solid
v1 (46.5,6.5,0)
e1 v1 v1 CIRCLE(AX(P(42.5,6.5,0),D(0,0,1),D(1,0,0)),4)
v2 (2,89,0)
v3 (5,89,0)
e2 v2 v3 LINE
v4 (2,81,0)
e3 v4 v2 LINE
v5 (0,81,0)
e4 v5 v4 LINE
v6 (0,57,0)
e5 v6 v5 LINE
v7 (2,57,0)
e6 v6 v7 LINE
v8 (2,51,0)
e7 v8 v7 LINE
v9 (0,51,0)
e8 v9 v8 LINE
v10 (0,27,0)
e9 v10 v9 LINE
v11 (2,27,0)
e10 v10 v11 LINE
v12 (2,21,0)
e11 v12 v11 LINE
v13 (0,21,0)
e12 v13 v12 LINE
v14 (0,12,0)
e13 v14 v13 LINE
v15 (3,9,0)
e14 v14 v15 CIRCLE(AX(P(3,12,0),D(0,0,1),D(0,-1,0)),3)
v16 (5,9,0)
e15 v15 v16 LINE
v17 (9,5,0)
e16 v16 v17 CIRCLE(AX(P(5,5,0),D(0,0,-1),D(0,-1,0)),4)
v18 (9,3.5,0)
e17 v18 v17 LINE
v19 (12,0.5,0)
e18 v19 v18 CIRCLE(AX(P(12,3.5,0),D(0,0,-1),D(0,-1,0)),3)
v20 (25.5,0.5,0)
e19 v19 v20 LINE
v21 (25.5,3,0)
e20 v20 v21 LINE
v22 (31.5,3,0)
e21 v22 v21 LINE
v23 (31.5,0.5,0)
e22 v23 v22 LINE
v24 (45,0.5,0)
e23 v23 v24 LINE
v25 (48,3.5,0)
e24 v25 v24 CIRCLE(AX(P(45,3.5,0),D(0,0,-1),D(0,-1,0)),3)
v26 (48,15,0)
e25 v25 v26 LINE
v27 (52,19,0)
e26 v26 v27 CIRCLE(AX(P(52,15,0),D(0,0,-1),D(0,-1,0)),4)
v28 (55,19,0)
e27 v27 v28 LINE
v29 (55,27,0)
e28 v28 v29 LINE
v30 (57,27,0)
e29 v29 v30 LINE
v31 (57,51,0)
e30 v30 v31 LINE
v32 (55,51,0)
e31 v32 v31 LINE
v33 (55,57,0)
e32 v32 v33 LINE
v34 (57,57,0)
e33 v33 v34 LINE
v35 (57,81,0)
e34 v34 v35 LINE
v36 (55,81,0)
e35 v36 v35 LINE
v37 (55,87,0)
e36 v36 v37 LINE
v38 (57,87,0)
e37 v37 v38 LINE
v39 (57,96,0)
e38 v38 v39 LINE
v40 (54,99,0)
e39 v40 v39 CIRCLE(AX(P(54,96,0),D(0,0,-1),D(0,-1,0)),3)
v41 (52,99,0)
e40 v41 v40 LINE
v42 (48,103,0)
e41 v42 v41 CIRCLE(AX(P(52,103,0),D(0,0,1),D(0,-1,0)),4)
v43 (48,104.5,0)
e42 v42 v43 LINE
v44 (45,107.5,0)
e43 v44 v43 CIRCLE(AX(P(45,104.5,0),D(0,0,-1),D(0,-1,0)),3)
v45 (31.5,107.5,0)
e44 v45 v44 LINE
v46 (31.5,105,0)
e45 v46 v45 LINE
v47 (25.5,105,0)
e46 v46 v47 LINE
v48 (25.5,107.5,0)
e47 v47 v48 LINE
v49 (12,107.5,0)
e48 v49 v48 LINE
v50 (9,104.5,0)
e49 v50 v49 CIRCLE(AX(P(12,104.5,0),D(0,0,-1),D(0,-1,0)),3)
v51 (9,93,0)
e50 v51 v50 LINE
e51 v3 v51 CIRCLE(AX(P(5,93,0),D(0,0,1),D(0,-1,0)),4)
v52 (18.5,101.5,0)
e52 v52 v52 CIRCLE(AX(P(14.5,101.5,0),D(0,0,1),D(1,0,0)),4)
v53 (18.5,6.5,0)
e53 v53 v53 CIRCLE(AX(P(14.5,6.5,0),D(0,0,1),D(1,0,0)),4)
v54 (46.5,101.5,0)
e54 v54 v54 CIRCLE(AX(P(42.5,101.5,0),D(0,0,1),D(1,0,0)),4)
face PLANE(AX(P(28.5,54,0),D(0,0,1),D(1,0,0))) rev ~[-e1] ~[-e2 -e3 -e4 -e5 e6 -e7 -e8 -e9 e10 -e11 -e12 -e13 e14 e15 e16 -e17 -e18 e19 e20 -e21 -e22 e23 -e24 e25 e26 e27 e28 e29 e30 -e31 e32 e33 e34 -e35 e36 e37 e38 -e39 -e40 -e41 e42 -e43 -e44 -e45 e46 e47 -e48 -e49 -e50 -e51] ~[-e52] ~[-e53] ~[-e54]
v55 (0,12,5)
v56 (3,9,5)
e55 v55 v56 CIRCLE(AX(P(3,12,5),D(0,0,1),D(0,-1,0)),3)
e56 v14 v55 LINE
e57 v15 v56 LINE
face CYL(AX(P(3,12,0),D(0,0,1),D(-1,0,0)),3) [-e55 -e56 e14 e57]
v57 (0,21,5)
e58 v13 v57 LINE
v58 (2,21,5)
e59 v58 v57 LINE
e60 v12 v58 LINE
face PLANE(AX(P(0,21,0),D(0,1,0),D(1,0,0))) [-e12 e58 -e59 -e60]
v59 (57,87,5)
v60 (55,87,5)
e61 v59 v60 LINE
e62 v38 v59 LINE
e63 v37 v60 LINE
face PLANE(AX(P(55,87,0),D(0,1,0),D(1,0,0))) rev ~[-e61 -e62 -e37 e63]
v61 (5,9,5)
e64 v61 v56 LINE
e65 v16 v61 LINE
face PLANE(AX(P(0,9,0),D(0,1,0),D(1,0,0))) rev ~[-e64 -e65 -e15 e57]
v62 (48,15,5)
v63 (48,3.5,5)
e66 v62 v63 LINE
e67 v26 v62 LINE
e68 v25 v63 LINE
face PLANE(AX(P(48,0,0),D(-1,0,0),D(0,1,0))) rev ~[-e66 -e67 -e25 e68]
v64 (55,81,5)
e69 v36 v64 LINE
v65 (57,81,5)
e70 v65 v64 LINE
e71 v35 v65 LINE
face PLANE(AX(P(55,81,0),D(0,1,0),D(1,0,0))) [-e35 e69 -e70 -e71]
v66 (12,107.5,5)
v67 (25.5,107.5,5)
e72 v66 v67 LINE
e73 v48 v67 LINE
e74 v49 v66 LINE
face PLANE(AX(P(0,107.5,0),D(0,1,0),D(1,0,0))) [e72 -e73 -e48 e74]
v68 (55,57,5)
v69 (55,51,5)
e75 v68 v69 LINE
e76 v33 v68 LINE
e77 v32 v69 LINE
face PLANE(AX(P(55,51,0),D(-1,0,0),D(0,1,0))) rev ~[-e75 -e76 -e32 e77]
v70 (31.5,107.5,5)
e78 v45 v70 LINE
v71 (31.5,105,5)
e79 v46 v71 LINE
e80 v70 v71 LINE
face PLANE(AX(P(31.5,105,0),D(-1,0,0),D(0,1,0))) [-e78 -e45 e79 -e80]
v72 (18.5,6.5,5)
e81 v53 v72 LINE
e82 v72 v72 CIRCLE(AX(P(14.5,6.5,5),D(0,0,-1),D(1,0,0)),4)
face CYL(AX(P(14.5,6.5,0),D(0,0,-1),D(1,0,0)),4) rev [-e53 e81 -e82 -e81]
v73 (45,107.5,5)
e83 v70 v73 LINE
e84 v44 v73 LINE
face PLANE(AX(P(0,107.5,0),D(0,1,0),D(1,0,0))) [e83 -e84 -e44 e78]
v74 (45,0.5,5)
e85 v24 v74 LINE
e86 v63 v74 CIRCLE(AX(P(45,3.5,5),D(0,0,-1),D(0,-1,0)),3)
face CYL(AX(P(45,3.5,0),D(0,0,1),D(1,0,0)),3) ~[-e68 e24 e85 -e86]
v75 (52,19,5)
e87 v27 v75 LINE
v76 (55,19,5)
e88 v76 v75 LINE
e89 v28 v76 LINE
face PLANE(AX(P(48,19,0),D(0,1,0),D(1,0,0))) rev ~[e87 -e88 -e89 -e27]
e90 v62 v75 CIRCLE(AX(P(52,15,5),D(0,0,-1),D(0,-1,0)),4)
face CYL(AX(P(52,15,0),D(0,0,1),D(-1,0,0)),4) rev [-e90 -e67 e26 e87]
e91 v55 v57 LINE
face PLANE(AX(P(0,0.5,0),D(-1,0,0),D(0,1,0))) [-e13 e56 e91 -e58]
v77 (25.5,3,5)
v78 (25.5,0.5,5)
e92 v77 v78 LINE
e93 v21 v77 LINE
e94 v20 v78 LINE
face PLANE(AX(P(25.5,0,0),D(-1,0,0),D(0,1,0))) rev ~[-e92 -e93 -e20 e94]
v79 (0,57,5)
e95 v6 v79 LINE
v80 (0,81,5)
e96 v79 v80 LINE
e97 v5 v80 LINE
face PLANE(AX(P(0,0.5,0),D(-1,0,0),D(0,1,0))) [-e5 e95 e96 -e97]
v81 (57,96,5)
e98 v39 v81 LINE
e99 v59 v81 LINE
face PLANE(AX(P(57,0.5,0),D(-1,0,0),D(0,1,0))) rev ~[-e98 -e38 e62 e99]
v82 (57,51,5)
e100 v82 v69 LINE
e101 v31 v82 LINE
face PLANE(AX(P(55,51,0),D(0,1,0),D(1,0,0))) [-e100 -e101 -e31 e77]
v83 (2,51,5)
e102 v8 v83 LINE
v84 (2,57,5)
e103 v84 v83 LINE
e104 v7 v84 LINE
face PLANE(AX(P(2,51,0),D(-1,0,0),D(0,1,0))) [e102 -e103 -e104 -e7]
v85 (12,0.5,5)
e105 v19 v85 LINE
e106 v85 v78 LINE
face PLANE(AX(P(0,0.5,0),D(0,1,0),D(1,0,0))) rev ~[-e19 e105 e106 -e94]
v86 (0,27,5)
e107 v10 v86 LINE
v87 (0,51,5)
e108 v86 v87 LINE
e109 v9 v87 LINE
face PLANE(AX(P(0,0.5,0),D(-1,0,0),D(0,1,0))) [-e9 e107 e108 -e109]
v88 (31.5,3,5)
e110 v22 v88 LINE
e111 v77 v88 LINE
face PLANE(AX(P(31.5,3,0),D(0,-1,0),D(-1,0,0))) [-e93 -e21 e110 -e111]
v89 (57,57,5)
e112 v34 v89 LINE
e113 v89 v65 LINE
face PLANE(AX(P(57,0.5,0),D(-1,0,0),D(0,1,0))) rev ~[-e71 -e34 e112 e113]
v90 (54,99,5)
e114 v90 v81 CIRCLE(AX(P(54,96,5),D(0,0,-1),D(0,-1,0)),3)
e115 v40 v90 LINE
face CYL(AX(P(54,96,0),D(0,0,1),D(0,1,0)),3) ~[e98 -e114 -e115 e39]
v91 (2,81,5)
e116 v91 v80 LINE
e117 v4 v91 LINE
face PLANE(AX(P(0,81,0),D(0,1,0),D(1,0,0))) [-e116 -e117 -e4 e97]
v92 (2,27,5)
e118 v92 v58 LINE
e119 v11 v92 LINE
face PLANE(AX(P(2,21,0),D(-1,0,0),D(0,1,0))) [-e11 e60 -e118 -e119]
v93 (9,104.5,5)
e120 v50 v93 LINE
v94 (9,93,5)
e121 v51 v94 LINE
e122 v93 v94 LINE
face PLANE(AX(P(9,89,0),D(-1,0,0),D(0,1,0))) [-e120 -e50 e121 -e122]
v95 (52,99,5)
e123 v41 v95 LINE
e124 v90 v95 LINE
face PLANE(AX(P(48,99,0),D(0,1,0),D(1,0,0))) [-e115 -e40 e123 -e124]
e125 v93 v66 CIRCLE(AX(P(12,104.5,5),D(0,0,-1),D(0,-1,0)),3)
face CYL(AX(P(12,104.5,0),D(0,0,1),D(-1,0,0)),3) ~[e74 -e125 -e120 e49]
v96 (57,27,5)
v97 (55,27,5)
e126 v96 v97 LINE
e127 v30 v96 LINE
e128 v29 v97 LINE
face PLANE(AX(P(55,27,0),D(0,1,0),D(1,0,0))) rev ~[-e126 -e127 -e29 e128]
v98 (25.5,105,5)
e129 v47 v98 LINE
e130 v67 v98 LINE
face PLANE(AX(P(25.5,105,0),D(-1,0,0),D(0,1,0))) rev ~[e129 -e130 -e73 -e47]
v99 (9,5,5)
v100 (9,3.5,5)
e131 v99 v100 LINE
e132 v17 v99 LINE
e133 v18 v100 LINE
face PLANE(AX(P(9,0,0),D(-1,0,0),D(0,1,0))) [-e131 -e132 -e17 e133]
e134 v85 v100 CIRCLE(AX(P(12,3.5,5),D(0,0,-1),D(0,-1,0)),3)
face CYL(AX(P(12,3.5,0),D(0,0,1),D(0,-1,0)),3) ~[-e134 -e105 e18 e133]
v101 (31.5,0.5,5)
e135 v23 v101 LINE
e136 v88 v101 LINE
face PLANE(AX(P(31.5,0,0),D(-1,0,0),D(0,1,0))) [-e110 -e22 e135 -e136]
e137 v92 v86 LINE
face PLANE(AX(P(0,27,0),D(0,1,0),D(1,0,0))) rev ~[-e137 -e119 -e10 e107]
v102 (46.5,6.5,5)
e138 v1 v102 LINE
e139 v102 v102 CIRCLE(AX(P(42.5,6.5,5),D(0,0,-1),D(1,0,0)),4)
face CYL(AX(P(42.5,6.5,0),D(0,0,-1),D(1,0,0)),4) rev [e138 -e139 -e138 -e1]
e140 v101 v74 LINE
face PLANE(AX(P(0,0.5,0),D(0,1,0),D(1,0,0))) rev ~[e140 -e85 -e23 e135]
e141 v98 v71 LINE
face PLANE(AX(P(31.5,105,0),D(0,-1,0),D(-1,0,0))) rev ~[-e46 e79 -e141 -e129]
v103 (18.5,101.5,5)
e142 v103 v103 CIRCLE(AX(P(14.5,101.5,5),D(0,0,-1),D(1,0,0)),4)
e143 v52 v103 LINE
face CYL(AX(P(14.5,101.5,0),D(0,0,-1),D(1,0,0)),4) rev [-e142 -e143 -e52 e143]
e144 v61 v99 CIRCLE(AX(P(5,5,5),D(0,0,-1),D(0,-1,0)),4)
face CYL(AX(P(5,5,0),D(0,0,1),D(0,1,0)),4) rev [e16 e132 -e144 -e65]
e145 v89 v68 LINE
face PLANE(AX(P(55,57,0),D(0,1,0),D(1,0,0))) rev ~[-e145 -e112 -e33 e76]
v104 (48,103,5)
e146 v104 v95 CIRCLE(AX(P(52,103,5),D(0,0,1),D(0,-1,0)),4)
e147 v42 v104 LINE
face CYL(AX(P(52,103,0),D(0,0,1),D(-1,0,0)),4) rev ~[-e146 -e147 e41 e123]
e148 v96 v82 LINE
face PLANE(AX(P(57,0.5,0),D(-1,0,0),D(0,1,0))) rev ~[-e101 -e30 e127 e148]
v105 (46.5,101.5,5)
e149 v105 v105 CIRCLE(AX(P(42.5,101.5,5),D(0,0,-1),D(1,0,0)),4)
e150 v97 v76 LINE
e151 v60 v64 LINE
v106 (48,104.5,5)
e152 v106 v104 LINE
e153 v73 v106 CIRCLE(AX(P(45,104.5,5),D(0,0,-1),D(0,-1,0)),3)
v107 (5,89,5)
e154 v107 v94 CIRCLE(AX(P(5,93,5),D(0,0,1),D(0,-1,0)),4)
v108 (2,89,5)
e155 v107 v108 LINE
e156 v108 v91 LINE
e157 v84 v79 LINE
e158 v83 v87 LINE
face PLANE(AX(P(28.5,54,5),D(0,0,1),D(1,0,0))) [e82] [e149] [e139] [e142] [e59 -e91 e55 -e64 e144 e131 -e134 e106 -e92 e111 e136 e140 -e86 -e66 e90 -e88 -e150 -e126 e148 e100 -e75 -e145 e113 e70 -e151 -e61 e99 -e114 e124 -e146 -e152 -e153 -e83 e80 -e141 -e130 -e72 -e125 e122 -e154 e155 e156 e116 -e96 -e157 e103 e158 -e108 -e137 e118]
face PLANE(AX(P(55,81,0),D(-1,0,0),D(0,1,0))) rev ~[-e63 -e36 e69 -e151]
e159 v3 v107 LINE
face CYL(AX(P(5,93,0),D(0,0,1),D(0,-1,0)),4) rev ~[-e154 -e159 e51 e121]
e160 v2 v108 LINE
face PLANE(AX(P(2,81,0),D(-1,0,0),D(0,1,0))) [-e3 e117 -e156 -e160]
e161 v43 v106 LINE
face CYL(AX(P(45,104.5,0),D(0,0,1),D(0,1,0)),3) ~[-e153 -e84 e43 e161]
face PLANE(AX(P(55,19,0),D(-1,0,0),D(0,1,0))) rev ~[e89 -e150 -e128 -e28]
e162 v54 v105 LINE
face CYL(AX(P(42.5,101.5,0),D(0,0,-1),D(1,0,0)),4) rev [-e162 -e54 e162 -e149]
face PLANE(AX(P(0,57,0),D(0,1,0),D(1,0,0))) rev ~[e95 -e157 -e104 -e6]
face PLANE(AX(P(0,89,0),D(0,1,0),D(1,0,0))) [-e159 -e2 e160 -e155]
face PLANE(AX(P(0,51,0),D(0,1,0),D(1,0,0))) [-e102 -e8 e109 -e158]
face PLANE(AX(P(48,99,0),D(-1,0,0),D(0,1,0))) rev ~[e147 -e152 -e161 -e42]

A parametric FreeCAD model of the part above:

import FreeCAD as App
import Part
import Sketcher

V = App.Vector


def edges_at(feature, points):
    """Names of the edges that pass closest to the given points."""
    edges = feature.Shape.Edges
    near = lambda p: min(range(len(edges)), key=lambda i: edges[i].distToShape(Part.Vertex(*p))[0])
    return sorted({f"Edge{near(p) + 1}" for p in points})

doc = App.newDocument("Part")
params = doc.addObject("Spreadsheet::Sheet", "Params")
for row, (alias, value) in enumerate([
    ("sketch1_width", "9 mm"),
    ("pad1_length", "10 mm"),
    ("sketch2_width", "9 mm"),
    ("sketch2_height", "19 mm"),
    ("pad2_length", "10 mm"),
    ("sketch3_width", "9 mm"),
    ("pad3_length", "10 mm"),
    ("sketch4_width", "2 mm"),
    ("sketch4_height", "6 mm"),
    ("pad4_length", "10 mm"),
    ("sketch5_width", "2 mm"),
    ("sketch5_height", "8 mm"),
    ("pad5_length", "10 mm"),
    ("sketch6_width", "2 mm"),
    ("sketch6_height", "6 mm"),
    ("pad6_length", "10 mm"),
    ("sketch7_width", "2 mm"),
    ("sketch7_height", "6 mm"),
    ("pad7_length", "10 mm"),
    ("sketch8_width", "2 mm"),
    ("sketch8_height", "6 mm"),
    ("pad8_length", "10 mm"),
    ("sketch9_width", "2 mm"),
    ("sketch9_height", "8 mm"),
    ("pad9_length", "10 mm"),
    ("sketch10_diameter", "8 mm"),
    ("pad10_length", "10 mm"),
    ("sketch11_diameter", "8 mm"),
    ("pad11_length", "10 mm"),
    ("sketch12_diameter", "8 mm"),
    ("pad12_length", "10 mm"),
    ("sketch13_diameter", "8 mm"),
    ("pad13_length", "10 mm"),
    ("sketch14_width", "3 mm"),
    ("sketch14_height", "6 mm"),
    ("pad14_length", "10 mm"),
    ("sketch15_width", "3 mm"),
    ("sketch15_height", "6 mm"),
    ("pad15_length", "10 mm"),
    ("sketch16_width", "9 mm"),
    ("sketch16_height", "19 mm"),
    ("pad16_length", "10 mm"),
    ("sketch17_width", "57 mm"),
    ("sketch17_height", "107 mm"),
    ("pad17_length", "5 mm"),
    ("fillet_radius", "3 mm"),
    ("fillet2_radius", "4 mm"),
], start=1):
    params.set(f"A{row}", alias)
    params.set(f"B{row}", "=" + value)
    params.setAlias(f"B{row}", alias)

body = doc.addObject("PartDesign::Body", "Body")

sketch1 = body.newObject("Sketcher::SketchObject", "Sketch")
sketch1.AttachmentSupport = (doc.getObject("XY_Plane"), [""])
sketch1.MapMode = "FlatFace"
sketch1.addGeometry(Part.LineSegment(V(0, 9, 0), V(0, 0, 0)), False)
sketch1.addGeometry(Part.LineSegment(V(0, 0, 0), V(9, 0, 0)), False)
sketch1.addGeometry(Part.LineSegment(V(9, 0, 0), V(9, 9, 0)), False)
sketch1.addGeometry(Part.LineSegment(V(9, 9, 0), V(0, 9, 0)), False)
sketch1.addConstraint(Sketcher.Constraint("Coincident", 0, 2, 1, 1))
sketch1.addConstraint(Sketcher.Constraint("Coincident", 1, 2, 2, 1))
sketch1.addConstraint(Sketcher.Constraint("Coincident", 2, 2, 3, 1))
sketch1.addConstraint(Sketcher.Constraint("Coincident", 3, 2, 0, 1))
sketch1.addConstraint(Sketcher.Constraint("Vertical", 0))
sketch1.addConstraint(Sketcher.Constraint("Horizontal", 1))
sketch1.addConstraint(Sketcher.Constraint("Vertical", 2))
sketch1.addConstraint(Sketcher.Constraint("Horizontal", 3))
sketch1.addConstraint(Sketcher.Constraint("Coincident", 0, 2, -1, 1))
sketch1.addConstraint(Sketcher.Constraint("Equal", 3, 0))
sketch1.addConstraint(Sketcher.Constraint("DistanceX", 1, 1, 1, 2, 9.0))
sketch1.setExpression("Constraints[10]", "Params.sketch1_width")
pad1 = body.newObject("PartDesign::Pad", "Pad")
pad1.Profile = sketch1
pad1.setExpression("Length", "Params.pad1_length")
body2 = doc.addObject("PartDesign::Body", "Body001")

sketch2 = body2.newObject("Sketcher::SketchObject", "Sketch001")
sketch2.AttachmentSupport = (doc.getObject("XY_Plane001"), [""])
sketch2.MapMode = "FlatFace"
sketch2.addGeometry(Part.LineSegment(V(0, 108, 0), V(0, 89, 0)), False)
sketch2.addGeometry(Part.LineSegment(V(0, 89, 0), V(9, 89, 0)), False)
sketch2.addGeometry(Part.LineSegment(V(9, 89, 0), V(9, 108, 0)), False)
sketch2.addGeometry(Part.LineSegment(V(9, 108, 0), V(0, 108, 0)), False)
sketch2.addConstraint(Sketcher.Constraint("Coincident", 0, 2, 1, 1))
sketch2.addConstraint(Sketcher.Constraint("Coincident", 1, 2, 2, 1))
sketch2.addConstraint(Sketcher.Constraint("Coincident", 2, 2, 3, 1))
sketch2.addConstraint(Sketcher.Constraint("Coincident", 3, 2, 0, 1))
sketch2.addConstraint(Sketcher.Constraint("Vertical", 0))
sketch2.addConstraint(Sketcher.Constraint("Horizontal", 1))
sketch2.addConstraint(Sketcher.Constraint("Vertical", 2))
sketch2.addConstraint(Sketcher.Constraint("Horizontal", 3))
sketch2.addConstraint(Sketcher.Constraint("PointOnObject", 0, 2, -2))
sketch2.addConstraint(Sketcher.Constraint("DistanceX", 1, 1, 1, 2, 9.0))
sketch2.addConstraint(Sketcher.Constraint("DistanceY", 0, 2, 0, 1, 19.0))
sketch2.addConstraint(Sketcher.Constraint("DistanceY", -1, 1, 0, 2, 89.0))
sketch2.setExpression("Constraints[9]", "Params.sketch2_width")
sketch2.setExpression("Constraints[10]", "Params.sketch2_height")
pad2 = body2.newObject("PartDesign::Pad", "Pad001")
pad2.Profile = sketch2
pad2.setExpression("Length", "Params.pad2_length")
body3 = doc.addObject("PartDesign::Body", "Body002")

sketch3 = body3.newObject("Sketcher::SketchObject", "Sketch002")
sketch3.AttachmentSupport = (doc.getObject("XY_Plane002"), [""])
sketch3.MapMode = "FlatFace"
sketch3.addGeometry(Part.LineSegment(V(48, 108, 0), V(48, 99, 0)), False)
sketch3.addGeometry(Part.LineSegment(V(48, 99, 0), V(57, 99, 0)), False)
sketch3.addGeometry(Part.LineSegment(V(57, 99, 0), V(57, 108, 0)), False)
sketch3.addGeometry(Part.LineSegment(V(57, 108, 0), V(48, 108, 0)), False)
sketch3.addConstraint(Sketcher.Constraint("Coincident", 0, 2, 1, 1))
sketch3.addConstraint(Sketcher.Constraint("Coincident", 1, 2, 2, 1))
sketch3.addConstraint(Sketcher.Constraint("Coincident", 2, 2, 3, 1))
sketch3.addConstraint(Sketcher.Constraint("Coincident", 3, 2, 0, 1))
sketch3.addConstraint(Sketcher.Constraint("Vertical", 0))
sketch3.addConstraint(Sketcher.Constraint("Horizontal", 1))
sketch3.addConstraint(Sketcher.Constraint("Vertical", 2))
sketch3.addConstraint(Sketcher.Constraint("Horizontal", 3))
sketch3.addConstraint(Sketcher.Constraint("Equal", 3, 0))
sketch3.addConstraint(Sketcher.Constraint("DistanceX", 1, 1, 1, 2, 9.0))
sketch3.addConstraint(Sketcher.Constraint("DistanceX", -1, 1, 0, 2, 48.0))
sketch3.addConstraint(Sketcher.Constraint("DistanceY", -1, 1, 0, 2, 99.0))
sketch3.setExpression("Constraints[9]", "Params.sketch3_width")
pad3 = body3.newObject("PartDesign::Pad", "Pad002")
pad3.Profile = sketch3
pad3.setExpression("Length", "Params.pad3_length")
body4 = doc.addObject("PartDesign::Body", "Body003")

sketch4 = body4.newObject("Sketcher::SketchObject", "Sketch003")
sketch4.AttachmentSupport = (doc.getObject("XY_Plane003"), [""])
sketch4.MapMode = "FlatFace"
sketch4.addGeometry(Part.LineSegment(V(0, 57, 0), V(0, 51, 0)), False)
sketch4.addGeometry(Part.LineSegment(V(0, 51, 0), V(2, 51, 0)), False)
sketch4.addGeometry(Part.LineSegment(V(2, 51, 0), V(2, 57, 0)), False)
sketch4.addGeometry(Part.LineSegment(V(2, 57, 0), V(0, 57, 0)), False)
sketch4.addConstraint(Sketcher.Constraint("Coincident", 0, 2, 1, 1))
sketch4.addConstraint(Sketcher.Constraint("Coincident", 1, 2, 2, 1))
sketch4.addConstraint(Sketcher.Constraint("Coincident", 2, 2, 3, 1))
sketch4.addConstraint(Sketcher.Constraint("Coincident", 3, 2, 0, 1))
sketch4.addConstraint(Sketcher.Constraint("Vertical", 0))
sketch4.addConstraint(Sketcher.Constraint("Horizontal", 1))
sketch4.addConstraint(Sketcher.Constraint("Vertical", 2))
sketch4.addConstraint(Sketcher.Constraint("Horizontal", 3))
sketch4.addConstraint(Sketcher.Constraint("PointOnObject", 0, 2, -2))
sketch4.addConstraint(Sketcher.Constraint("DistanceX", 1, 1, 1, 2, 2.0))
sketch4.addConstraint(Sketcher.Constraint("DistanceY", 0, 2, 0, 1, 6.0))
sketch4.addConstraint(Sketcher.Constraint("DistanceY", -1, 1, 0, 2, 51.0))
sketch4.setExpression("Constraints[9]", "Params.sketch4_width")
sketch4.setExpression("Constraints[10]", "Params.sketch4_height")
pad4 = body4.newObject("PartDesign::Pad", "Pad003")
pad4.Profile = sketch4
pad4.setExpression("Length", "Params.pad4_length")
body5 = doc.addObject("PartDesign::Body", "Body004")

sketch5 = body5.newObject("Sketcher::SketchObject", "Sketch004")
sketch5.AttachmentSupport = (doc.getObject("XY_Plane004"), [""])
sketch5.MapMode = "FlatFace"
sketch5.addGeometry(Part.LineSegment(V(0, 89, 0), V(0, 81, 0)), False)
sketch5.addGeometry(Part.LineSegment(V(0, 81, 0), V(2, 81, 0)), False)
sketch5.addGeometry(Part.LineSegment(V(2, 81, 0), V(2, 89, 0)), False)
sketch5.addGeometry(Part.LineSegment(V(2, 89, 0), V(0, 89, 0)), False)
sketch5.addConstraint(Sketcher.Constraint("Coincident", 0, 2, 1, 1))
sketch5.addConstraint(Sketcher.Constraint("Coincident", 1, 2, 2, 1))
sketch5.addConstraint(Sketcher.Constraint("Coincident", 2, 2, 3, 1))
sketch5.addConstraint(Sketcher.Constraint("Coincident", 3, 2, 0, 1))
sketch5.addConstraint(Sketcher.Constraint("Vertical", 0))
sketch5.addConstraint(Sketcher.Constraint("Horizontal", 1))
sketch5.addConstraint(Sketcher.Constraint("Vertical", 2))
sketch5.addConstraint(Sketcher.Constraint("Horizontal", 3))
sketch5.addConstraint(Sketcher.Constraint("PointOnObject", 0, 2, -2))
sketch5.addConstraint(Sketcher.Constraint("DistanceX", 1, 1, 1, 2, 2.0))
sketch5.addConstraint(Sketcher.Constraint("DistanceY", 0, 2, 0, 1, 8.0))
sketch5.addConstraint(Sketcher.Constraint("DistanceY", -1, 1, 0, 2, 81.0))
sketch5.setExpression("Constraints[9]", "Params.sketch5_width")
sketch5.setExpression("Constraints[10]", "Params.sketch5_height")
pad5 = body5.newObject("PartDesign::Pad", "Pad004")
pad5.Profile = sketch5
pad5.setExpression("Length", "Params.pad5_length")
body6 = doc.addObject("PartDesign::Body", "Body005")

sketch6 = body6.newObject("Sketcher::SketchObject", "Sketch005")
sketch6.AttachmentSupport = (doc.getObject("XY_Plane005"), [""])
sketch6.MapMode = "FlatFace"
sketch6.addGeometry(Part.LineSegment(V(0, 27, 0), V(0, 21, 0)), False)
sketch6.addGeometry(Part.LineSegment(V(0, 21, 0), V(2, 21, 0)), False)
sketch6.addGeometry(Part.LineSegment(V(2, 21, 0), V(2, 27, 0)), False)
sketch6.addGeometry(Part.LineSegment(V(2, 27, 0), V(0, 27, 0)), False)
sketch6.addConstraint(Sketcher.Constraint("Coincident", 0, 2, 1, 1))
sketch6.addConstraint(Sketcher.Constraint("Coincident", 1, 2, 2, 1))
sketch6.addConstraint(Sketcher.Constraint("Coincident", 2, 2, 3, 1))
sketch6.addConstraint(Sketcher.Constraint("Coincident", 3, 2, 0, 1))
sketch6.addConstraint(Sketcher.Constraint("Vertical", 0))
sketch6.addConstraint(Sketcher.Constraint("Horizontal", 1))
sketch6.addConstraint(Sketcher.Constraint("Vertical", 2))
sketch6.addConstraint(Sketcher.Constraint("Horizontal", 3))
sketch6.addConstraint(Sketcher.Constraint("PointOnObject", 0, 2, -2))
sketch6.addConstraint(Sketcher.Constraint("DistanceX", 1, 1, 1, 2, 2.0))
sketch6.addConstraint(Sketcher.Constraint("DistanceY", 0, 2, 0, 1, 6.0))
sketch6.addConstraint(Sketcher.Constraint("DistanceY", -1, 1, 0, 2, 21.0))
sketch6.setExpression("Constraints[9]", "Params.sketch6_width")
sketch6.setExpression("Constraints[10]", "Params.sketch6_height")
pad6 = body6.newObject("PartDesign::Pad", "Pad005")
pad6.Profile = sketch6
pad6.setExpression("Length", "Params.pad6_length")
body7 = doc.addObject("PartDesign::Body", "Body006")

sketch7 = body7.newObject("Sketcher::SketchObject", "Sketch006")
sketch7.AttachmentSupport = (doc.getObject("XY_Plane006"), [""])
sketch7.MapMode = "FlatFace"
sketch7.addGeometry(Part.LineSegment(V(55, 57, 0), V(55, 51, 0)), False)
sketch7.addGeometry(Part.LineSegment(V(55, 51, 0), V(57, 51, 0)), False)
sketch7.addGeometry(Part.LineSegment(V(57, 51, 0), V(57, 57, 0)), False)
sketch7.addGeometry(Part.LineSegment(V(57, 57, 0), V(55, 57, 0)), False)
sketch7.addConstraint(Sketcher.Constraint("Coincident", 0, 2, 1, 1))
sketch7.addConstraint(Sketcher.Constraint("Coincident", 1, 2, 2, 1))
sketch7.addConstraint(Sketcher.Constraint("Coincident", 2, 2, 3, 1))
sketch7.addConstraint(Sketcher.Constraint("Coincident", 3, 2, 0, 1))
sketch7.addConstraint(Sketcher.Constraint("Vertical", 0))
sketch7.addConstraint(Sketcher.Constraint("Horizontal", 1))
sketch7.addConstraint(Sketcher.Constraint("Vertical", 2))
sketch7.addConstraint(Sketcher.Constraint("Horizontal", 3))
sketch7.addConstraint(Sketcher.Constraint("DistanceX", 1, 1, 1, 2, 2.0))
sketch7.addConstraint(Sketcher.Constraint("DistanceY", 0, 2, 0, 1, 6.0))
sketch7.addConstraint(Sketcher.Constraint("DistanceX", -1, 1, 0, 2, 55.0))
sketch7.addConstraint(Sketcher.Constraint("DistanceY", -1, 1, 0, 2, 51.0))
sketch7.setExpression("Constraints[8]", "Params.sketch7_width")
sketch7.setExpression("Constraints[9]", "Params.sketch7_height")
pad7 = body7.newObject("PartDesign::Pad", "Pad006")
pad7.Profile = sketch7
pad7.setExpression("Length", "Params.pad7_length")
body8 = doc.addObject("PartDesign::Body", "Body007")

sketch8 = body8.newObject("Sketcher::SketchObject", "Sketch007")
sketch8.AttachmentSupport = (doc.getObject("XY_Plane007"), [""])
sketch8.MapMode = "FlatFace"
sketch8.addGeometry(Part.LineSegment(V(55, 87, 0), V(55, 81, 0)), False)
sketch8.addGeometry(Part.LineSegment(V(55, 81, 0), V(57, 81, 0)), False)
sketch8.addGeometry(Part.LineSegment(V(57, 81, 0), V(57, 87, 0)), False)
sketch8.addGeometry(Part.LineSegment(V(57, 87, 0), V(55, 87, 0)), False)
sketch8.addConstraint(Sketcher.Constraint("Coincident", 0, 2, 1, 1))
sketch8.addConstraint(Sketcher.Constraint("Coincident", 1, 2, 2, 1))
sketch8.addConstraint(Sketcher.Constraint("Coincident", 2, 2, 3, 1))
sketch8.addConstraint(Sketcher.Constraint("Coincident", 3, 2, 0, 1))
sketch8.addConstraint(Sketcher.Constraint("Vertical", 0))
sketch8.addConstraint(Sketcher.Constraint("Horizontal", 1))
sketch8.addConstraint(Sketcher.Constraint("Vertical", 2))
sketch8.addConstraint(Sketcher.Constraint("Horizontal", 3))
sketch8.addConstraint(Sketcher.Constraint("DistanceX", 1, 1, 1, 2, 2.0))
sketch8.addConstraint(Sketcher.Constraint("DistanceY", 0, 2, 0, 1, 6.0))
sketch8.addConstraint(Sketcher.Constraint("DistanceX", -1, 1, 0, 2, 55.0))
sketch8.addConstraint(Sketcher.Constraint("DistanceY", -1, 1, 0, 2, 81.0))
sketch8.setExpression("Constraints[8]", "Params.sketch8_width")
sketch8.setExpression("Constraints[9]", "Params.sketch8_height")
pad8 = body8.newObject("PartDesign::Pad", "Pad007")
pad8.Profile = sketch8
pad8.setExpression("Length", "Params.pad8_length")
body9 = doc.addObject("PartDesign::Body", "Body008")

sketch9 = body9.newObject("Sketcher::SketchObject", "Sketch008")
sketch9.AttachmentSupport = (doc.getObject("XY_Plane008"), [""])
sketch9.MapMode = "FlatFace"
sketch9.addGeometry(Part.LineSegment(V(55, 27, 0), V(55, 19, 0)), False)
sketch9.addGeometry(Part.LineSegment(V(55, 19, 0), V(57, 19, 0)), False)
sketch9.addGeometry(Part.LineSegment(V(57, 19, 0), V(57, 27, 0)), False)
sketch9.addGeometry(Part.LineSegment(V(57, 27, 0), V(55, 27, 0)), False)
sketch9.addConstraint(Sketcher.Constraint("Coincident", 0, 2, 1, 1))
sketch9.addConstraint(Sketcher.Constraint("Coincident", 1, 2, 2, 1))
sketch9.addConstraint(Sketcher.Constraint("Coincident", 2, 2, 3, 1))
sketch9.addConstraint(Sketcher.Constraint("Coincident", 3, 2, 0, 1))
sketch9.addConstraint(Sketcher.Constraint("Vertical", 0))
sketch9.addConstraint(Sketcher.Constraint("Horizontal", 1))
sketch9.addConstraint(Sketcher.Constraint("Vertical", 2))
sketch9.addConstraint(Sketcher.Constraint("Horizontal", 3))
sketch9.addConstraint(Sketcher.Constraint("DistanceX", 1, 1, 1, 2, 2.0))
sketch9.addConstraint(Sketcher.Constraint("DistanceY", 0, 2, 0, 1, 8.0))
sketch9.addConstraint(Sketcher.Constraint("DistanceX", -1, 1, 0, 2, 55.0))
sketch9.addConstraint(Sketcher.Constraint("DistanceY", -1, 1, 0, 2, 19.0))
sketch9.setExpression("Constraints[8]", "Params.sketch9_width")
sketch9.setExpression("Constraints[9]", "Params.sketch9_height")
pad9 = body9.newObject("PartDesign::Pad", "Pad008")
pad9.Profile = sketch9
pad9.setExpression("Length", "Params.pad9_length")
body10 = doc.addObject("PartDesign::Body", "Body009")

sketch10 = body10.newObject("Sketcher::SketchObject", "Sketch009")
sketch10.AttachmentSupport = (doc.getObject("XY_Plane009"), [""])
sketch10.MapMode = "FlatFace"
sketch10.addGeometry(Part.Circle(V(14.5, 6.5, 0), V(0, 0, 1), 4), False)
sketch10.addConstraint(Sketcher.Constraint("Diameter", 0, 8.0))
sketch10.addConstraint(Sketcher.Constraint("DistanceX", -1, 1, 0, 3, 14.5))
sketch10.addConstraint(Sketcher.Constraint("DistanceY", -1, 1, 0, 3, 6.5))
sketch10.setExpression("Constraints[0]", "Params.sketch10_diameter")
pad10 = body10.newObject("PartDesign::Pad", "Pad009")
pad10.Profile = sketch10
pad10.setExpression("Length", "Params.pad10_length")
body11 = doc.addObject("PartDesign::Body", "Body010")

sketch11 = body11.newObject("Sketcher::SketchObject", "Sketch010")
sketch11.AttachmentSupport = (doc.getObject("XY_Plane010"), [""])
sketch11.MapMode = "FlatFace"
sketch11.addGeometry(Part.Circle(V(42.5, 101.5, 0), V(0, 0, 1), 4), False)
sketch11.addConstraint(Sketcher.Constraint("Diameter", 0, 8.0))
sketch11.addConstraint(Sketcher.Constraint("DistanceX", -1, 1, 0, 3, 42.5))
sketch11.addConstraint(Sketcher.Constraint("DistanceY", -1, 1, 0, 3, 101.5))
sketch11.setExpression("Constraints[0]", "Params.sketch11_diameter")
pad11 = body11.newObject("PartDesign::Pad", "Pad010")
pad11.Profile = sketch11
pad11.setExpression("Length", "Params.pad11_length")
body12 = doc.addObject("PartDesign::Body", "Body011")

sketch12 = body12.newObject("Sketcher::SketchObject", "Sketch011")
sketch12.AttachmentSupport = (doc.getObject("XY_Plane011"), [""])
sketch12.MapMode = "FlatFace"
sketch12.addGeometry(Part.Circle(V(42.5, 6.5, 0), V(0, 0, 1), 4), False)
sketch12.addConstraint(Sketcher.Constraint("Diameter", 0, 8.0))
sketch12.addConstraint(Sketcher.Constraint("DistanceX", -1, 1, 0, 3, 42.5))
sketch12.addConstraint(Sketcher.Constraint("DistanceY", -1, 1, 0, 3, 6.5))
sketch12.setExpression("Constraints[0]", "Params.sketch12_diameter")
pad12 = body12.newObject("PartDesign::Pad", "Pad011")
pad12.Profile = sketch12
pad12.setExpression("Length", "Params.pad12_length")
body13 = doc.addObject("PartDesign::Body", "Body012")

sketch13 = body13.newObject("Sketcher::SketchObject", "Sketch012")
sketch13.AttachmentSupport = (doc.getObject("XY_Plane012"), [""])
sketch13.MapMode = "FlatFace"
sketch13.addGeometry(Part.Circle(V(14.5, 101.5, 0), V(0, 0, 1), 4), False)
sketch13.addConstraint(Sketcher.Constraint("Diameter", 0, 8.0))
sketch13.addConstraint(Sketcher.Constraint("DistanceX", -1, 1, 0, 3, 14.5))
sketch13.addConstraint(Sketcher.Constraint("DistanceY", -1, 1, 0, 3, 101.5))
sketch13.setExpression("Constraints[0]", "Params.sketch13_diameter")
pad13 = body13.newObject("PartDesign::Pad", "Pad012")
pad13.Profile = sketch13
pad13.setExpression("Length", "Params.pad13_length")
body14 = doc.addObject("PartDesign::Body", "Body013")

sketch14 = body14.newObject("Sketcher::SketchObject", "Sketch013")
sketch14.AttachmentSupport = (doc.getObject("XY_Plane013"), [""])
sketch14.MapMode = "FlatFace"
sketch14.addGeometry(Part.LineSegment(V(0, 6, 0), V(0, 0, 0)), False)
sketch14.addGeometry(Part.LineSegment(V(0, 0, 0), V(3, 0, 0)), False)
sketch14.addGeometry(Part.LineSegment(V(3, 0, 0), V(3, 6, 0)), False)
sketch14.addGeometry(Part.LineSegment(V(3, 6, 0), V(0, 6, 0)), False)
sketch14.addConstraint(Sketcher.Constraint("Coincident", 0, 2, 1, 1))
sketch14.addConstraint(Sketcher.Constraint("Coincident", 1, 2, 2, 1))
sketch14.addConstraint(Sketcher.Constraint("Coincident", 2, 2, 3, 1))
sketch14.addConstraint(Sketcher.Constraint("Coincident", 3, 2, 0, 1))
sketch14.addConstraint(Sketcher.Constraint("Vertical", 0))
sketch14.addConstraint(Sketcher.Constraint("Horizontal", 1))
sketch14.addConstraint(Sketcher.Constraint("Vertical", 2))
sketch14.addConstraint(Sketcher.Constraint("Horizontal", 3))
sketch14.addConstraint(Sketcher.Constraint("Coincident", 0, 2, -1, 1))
sketch14.addConstraint(Sketcher.Constraint("DistanceX", 1, 1, 1, 2, 3.0))
sketch14.addConstraint(Sketcher.Constraint("DistanceY", 0, 2, 0, 1, 6.0))
sketch14.setExpression("Constraints[9]", "Params.sketch14_width")
sketch14.setExpression("Constraints[10]", "Params.sketch14_height")
pad14 = body14.newObject("PartDesign::Pad", "Pad013")
pad14.Profile = sketch14
pad14.setExpression("Length", "Params.pad14_length")
body15 = doc.addObject("PartDesign::Body", "Body014")
doc.recompute()

body14.Placement = App.Placement(V(31.5, 0, 0), App.Rotation(V(0, 0, 1), 90))
boolean = body15.newObject("PartDesign::Boolean", "Boolean")
boolean.Type = "Fuse"
boolean.addObjects([body14])
body16 = doc.addObject("PartDesign::Body", "Body015")

sketch15 = body16.newObject("Sketcher::SketchObject", "Sketch014")
sketch15.AttachmentSupport = (doc.getObject("XY_Plane015"), [""])
sketch15.MapMode = "FlatFace"
sketch15.addGeometry(Part.LineSegment(V(0, 6, 0), V(0, 0, 0)), False)
sketch15.addGeometry(Part.LineSegment(V(0, 0, 0), V(3, 0, 0)), False)
sketch15.addGeometry(Part.LineSegment(V(3, 0, 0), V(3, 6, 0)), False)
sketch15.addGeometry(Part.LineSegment(V(3, 6, 0), V(0, 6, 0)), False)
sketch15.addConstraint(Sketcher.Constraint("Coincident", 0, 2, 1, 1))
sketch15.addConstraint(Sketcher.Constraint("Coincident", 1, 2, 2, 1))
sketch15.addConstraint(Sketcher.Constraint("Coincident", 2, 2, 3, 1))
sketch15.addConstraint(Sketcher.Constraint("Coincident", 3, 2, 0, 1))
sketch15.addConstraint(Sketcher.Constraint("Vertical", 0))
sketch15.addConstraint(Sketcher.Constraint("Horizontal", 1))
sketch15.addConstraint(Sketcher.Constraint("Vertical", 2))
sketch15.addConstraint(Sketcher.Constraint("Horizontal", 3))
sketch15.addConstraint(Sketcher.Constraint("Coincident", 0, 2, -1, 1))
sketch15.addConstraint(Sketcher.Constraint("DistanceX", 1, 1, 1, 2, 3.0))
sketch15.addConstraint(Sketcher.Constraint("DistanceY", 0, 2, 0, 1, 6.0))
sketch15.setExpression("Constraints[9]", "Params.sketch15_width")
sketch15.setExpression("Constraints[10]", "Params.sketch15_height")
pad15 = body16.newObject("PartDesign::Pad", "Pad014")
pad15.Profile = sketch15
pad15.setExpression("Length", "Params.pad15_length")
body17 = doc.addObject("PartDesign::Body", "Body016")
doc.recompute()

body16.Placement = App.Placement(V(31.5, 105, 0), App.Rotation(V(0, 0, 1), 90))
boolean2 = body17.newObject("PartDesign::Boolean", "Boolean001")
boolean2.Type = "Fuse"
boolean2.addObjects([body16])
body18 = doc.addObject("PartDesign::Body", "Body017")
body18.AllowCompound = True

sketch16 = body18.newObject("Sketcher::SketchObject", "Sketch015")
sketch16.AttachmentSupport = (doc.getObject("XY_Plane017"), [""])
sketch16.MapMode = "FlatFace"
sketch16.addGeometry(Part.LineSegment(V(48, 19, 0), V(48, 0, 0)), False)
sketch16.addGeometry(Part.LineSegment(V(48, 0, 0), V(57, 0, 0)), False)
sketch16.addGeometry(Part.LineSegment(V(57, 0, 0), V(57, 19, 0)), False)
sketch16.addGeometry(Part.LineSegment(V(57, 19, 0), V(48, 19, 0)), False)
sketch16.addConstraint(Sketcher.Constraint("Coincident", 0, 2, 1, 1))
sketch16.addConstraint(Sketcher.Constraint("Coincident", 1, 2, 2, 1))
sketch16.addConstraint(Sketcher.Constraint("Coincident", 2, 2, 3, 1))
sketch16.addConstraint(Sketcher.Constraint("Coincident", 3, 2, 0, 1))
sketch16.addConstraint(Sketcher.Constraint("Vertical", 0))
sketch16.addConstraint(Sketcher.Constraint("Horizontal", 1))
sketch16.addConstraint(Sketcher.Constraint("Vertical", 2))
sketch16.addConstraint(Sketcher.Constraint("Horizontal", 3))
sketch16.addConstraint(Sketcher.Constraint("PointOnObject", 0, 2, -1))
sketch16.addConstraint(Sketcher.Constraint("DistanceX", 1, 1, 1, 2, 9.0))
sketch16.addConstraint(Sketcher.Constraint("DistanceY", 0, 2, 0, 1, 19.0))
sketch16.addConstraint(Sketcher.Constraint("DistanceX", -1, 1, 0, 2, 48.0))
sketch16.setExpression("Constraints[9]", "Params.sketch16_width")
sketch16.setExpression("Constraints[10]", "Params.sketch16_height")
pad16 = body18.newObject("PartDesign::Pad", "Pad015")
pad16.Profile = sketch16
pad16.setExpression("Length", "Params.pad16_length")
doc.recompute()

boolean3 = body18.newObject("PartDesign::Boolean", "Boolean002")
boolean3.Type = "Fuse"
boolean3.addObjects([body])
doc.recompute()

boolean4 = body18.newObject("PartDesign::Boolean", "Boolean003")
boolean4.Type = "Fuse"
boolean4.addObjects([body2])
doc.recompute()

boolean5 = body18.newObject("PartDesign::Boolean", "Boolean004")
boolean5.Type = "Fuse"
boolean5.addObjects([body3])
doc.recompute()

boolean6 = body18.newObject("PartDesign::Boolean", "Boolean005")
boolean6.Type = "Fuse"
boolean6.addObjects([body4])
doc.recompute()

boolean7 = body18.newObject("PartDesign::Boolean", "Boolean006")
boolean7.Type = "Fuse"
boolean7.addObjects([body5])
doc.recompute()

boolean8 = body18.newObject("PartDesign::Boolean", "Boolean007")
boolean8.Type = "Fuse"
boolean8.addObjects([body6])
doc.recompute()

boolean9 = body18.newObject("PartDesign::Boolean", "Boolean008")
boolean9.Type = "Fuse"
boolean9.addObjects([body7])
doc.recompute()

boolean10 = body18.newObject("PartDesign::Boolean", "Boolean009")
boolean10.Type = "Fuse"
boolean10.addObjects([body8])
doc.recompute()

boolean11 = body18.newObject("PartDesign::Boolean", "Boolean010")
boolean11.Type = "Fuse"
boolean11.addObjects([body9])
doc.recompute()

boolean12 = body18.newObject("PartDesign::Boolean", "Boolean011")
boolean12.Type = "Fuse"
boolean12.addObjects([body10])
doc.recompute()

boolean13 = body18.newObject("PartDesign::Boolean", "Boolean012")
boolean13.Type = "Fuse"
boolean13.addObjects([body11])
doc.recompute()

boolean14 = body18.newObject("PartDesign::Boolean", "Boolean013")
boolean14.Type = "Fuse"
boolean14.addObjects([body12])
doc.recompute()

boolean15 = body18.newObject("PartDesign::Boolean", "Boolean014")
boolean15.Type = "Fuse"
boolean15.addObjects([body13])
doc.recompute()

boolean16 = body18.newObject("PartDesign::Boolean", "Boolean015")
boolean16.Type = "Fuse"
boolean16.addObjects([body15])
doc.recompute()

boolean17 = body18.newObject("PartDesign::Boolean", "Boolean016")
boolean17.Type = "Fuse"
boolean17.addObjects([body17])
body19 = doc.addObject("PartDesign::Body", "Body018")

sketch17 = body19.newObject("Sketcher::SketchObject", "Sketch016")
sketch17.AttachmentSupport = (doc.getObject("XY_Plane018"), [""])
sketch17.MapMode = "FlatFace"
sketch17.addGeometry(Part.LineSegment(V(0, 107.5, 0), V(0, 0.5, 0)), False)
sketch17.addGeometry(Part.LineSegment(V(0, 0.5, 0), V(57, 0.5, 0)), False)
sketch17.addGeometry(Part.LineSegment(V(57, 0.5, 0), V(57, 107.5, 0)), False)
sketch17.addGeometry(Part.LineSegment(V(57, 107.5, 0), V(0, 107.5, 0)), False)
sketch17.addConstraint(Sketcher.Constraint("Coincident", 0, 2, 1, 1))
sketch17.addConstraint(Sketcher.Constraint("Coincident", 1, 2, 2, 1))
sketch17.addConstraint(Sketcher.Constraint("Coincident", 2, 2, 3, 1))
sketch17.addConstraint(Sketcher.Constraint("Coincident", 3, 2, 0, 1))
sketch17.addConstraint(Sketcher.Constraint("Vertical", 0))
sketch17.addConstraint(Sketcher.Constraint("Horizontal", 1))
sketch17.addConstraint(Sketcher.Constraint("Vertical", 2))
sketch17.addConstraint(Sketcher.Constraint("Horizontal", 3))
sketch17.addConstraint(Sketcher.Constraint("PointOnObject", 0, 2, -2))
sketch17.addConstraint(Sketcher.Constraint("DistanceX", 1, 1, 1, 2, 57.0))
sketch17.addConstraint(Sketcher.Constraint("DistanceY", 0, 2, 0, 1, 107.0))
sketch17.addConstraint(Sketcher.Constraint("DistanceY", -1, 1, 0, 2, 0.5))
sketch17.setExpression("Constraints[9]", "Params.sketch17_width")
sketch17.setExpression("Constraints[10]", "Params.sketch17_height")
pad17 = body19.newObject("PartDesign::Pad", "Pad016")
pad17.Profile = sketch17
pad17.setExpression("Length", "Params.pad17_length")
doc.recompute()

boolean18 = body19.newObject("PartDesign::Boolean", "Boolean017")
boolean18.Type = "Cut"
boolean18.addObjects([body18])
doc.recompute()

fillet = body19.newObject("PartDesign::Fillet", "Fillet")
fillet.Base = (boolean18, edges_at(boolean18, [
    (9, 107.5, 2.5),
    (48, 107.5, 2.5),
    (57, 99, 2.5),
    (48, 0.5, 2.5),
    (9, 0.5, 2.5),
    (0, 9, 2.5),
]))
fillet.setExpression("Radius", "Params.fillet_radius")
doc.recompute()

fillet2 = body19.newObject("PartDesign::Fillet", "Fillet001")
fillet2.Base = (fillet, edges_at(fillet, [
    (9, 89, 2.5),
    (48, 99, 2.5),
    (9, 9, 2.5),
    (48, 19, 2.5),
]))
fillet2.setExpression("Radius", "Params.fillet2_radius")

doc.recompute()
